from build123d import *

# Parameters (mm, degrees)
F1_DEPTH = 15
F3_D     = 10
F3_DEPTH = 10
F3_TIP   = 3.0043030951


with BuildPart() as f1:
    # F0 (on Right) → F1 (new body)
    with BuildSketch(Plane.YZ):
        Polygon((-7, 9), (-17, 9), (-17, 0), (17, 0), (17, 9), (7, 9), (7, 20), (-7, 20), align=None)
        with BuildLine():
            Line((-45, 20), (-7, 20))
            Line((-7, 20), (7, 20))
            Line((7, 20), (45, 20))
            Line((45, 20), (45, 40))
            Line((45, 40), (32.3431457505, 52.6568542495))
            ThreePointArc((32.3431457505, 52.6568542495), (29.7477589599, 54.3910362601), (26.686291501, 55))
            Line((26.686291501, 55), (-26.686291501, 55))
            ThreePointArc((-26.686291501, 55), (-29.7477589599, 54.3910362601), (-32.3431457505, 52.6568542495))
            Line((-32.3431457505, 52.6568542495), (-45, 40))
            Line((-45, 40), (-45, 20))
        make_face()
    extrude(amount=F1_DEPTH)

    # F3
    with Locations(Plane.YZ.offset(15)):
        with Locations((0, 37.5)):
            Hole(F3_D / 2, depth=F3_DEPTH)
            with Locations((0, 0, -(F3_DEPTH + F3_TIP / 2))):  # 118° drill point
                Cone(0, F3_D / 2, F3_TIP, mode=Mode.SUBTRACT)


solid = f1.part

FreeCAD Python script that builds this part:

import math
import FreeCAD as App
import Part
import Sketcher

V = App.Vector

doc = App.newDocument("Part")
params = doc.addObject("Spreadsheet::Sheet", "Params")
for row, (alias, value) in enumerate([
    ("sketch1_radius", "8 mm"),
    ("sketch1_width", "10 mm"),
    ("sketch1_width2", "34 mm"),
    ("sketch1_width3", "38 mm"),
    ("sketch1_height", "9 mm"),
    ("pad1_length", "15 mm"),
    ("sketch2_diameter", "10 mm"),
    ("hole_diameter", "10 mm"),
    ("hole_depth", "10 mm"),
], start=1):
    params.set(f"A{row}", alias)
    params.set(f"B{row}", "=" + value)
    params.setAlias(f"B{row}", alias)

body = doc.addObject("PartDesign::Body", "Body")

sketch1 = body.newObject("Sketcher::SketchObject", "Sketch")
sketch1.AttachmentSupport = (doc.getObject("YZ_Plane"), [""])
sketch1.MapMode = "FlatFace"
sketch1.addGeometry([
    Part.LineSegment(V(-7, 9, 0), V(-17, 9, 0)),
    Part.LineSegment(V(-17, 9, 0), V(-17, 0, 0)),
    Part.LineSegment(V(-17, 0, 0), V(17, 0, 0)),
    Part.LineSegment(V(17, 0, 0), V(17, 9, 0)),
    Part.LineSegment(V(17, 9, 0), V(7, 9, 0)),
    Part.LineSegment(V(7, 9, 0), V(7, 20, 0)),
    Part.LineSegment(V(7, 20, 0), V(45, 20, 0)),
    Part.LineSegment(V(45, 20, 0), V(45, 40, 0)),
    Part.LineSegment(V(45, 40, 0), V(32, 53, 0)),
    Part.ArcOfCircle(Part.Circle(V(27, 47, 0), V(0, 0, 1), 8), math.radians(45), math.radians(90)),
    Part.LineSegment(V(27, 55, 0), V(-27, 55, 0)),
    Part.ArcOfCircle(Part.Circle(V(-27, 47, 0), V(0, 0, 1), 8), math.radians(90), math.radians(135)),
    Part.LineSegment(V(-32, 53, 0), V(-45, 40, 0)),
    Part.LineSegment(V(-45, 40, 0), V(-45, 20, 0)),
    Part.LineSegment(V(-45, 20, 0), V(-7, 20, 0)),
    Part.LineSegment(V(-7, 20, 0), V(-7, 9, 0)),
], False)
sketch1.addConstraint([
    Sketcher.Constraint("Coincident", 0, 2, 1, 1),
    Sketcher.Constraint("Coincident", 1, 2, 2, 1),
    Sketcher.Constraint("Coincident", 2, 2, 3, 1),
    Sketcher.Constraint("Coincident", 3, 2, 4, 1),
    Sketcher.Constraint("Coincident", 4, 2, 5, 1),
    Sketcher.Constraint("Coincident", 5, 2, 6, 1),
    Sketcher.Constraint("Coincident", 6, 2, 7, 1),
    Sketcher.Constraint("Coincident", 7, 2, 8, 1),
    Sketcher.Constraint("Tangent", 8, 2, 9, 1),
    Sketcher.Constraint("Tangent", 9, 2, 10, 1),
    Sketcher.Constraint("Tangent", 10, 2, 11, 1),
    Sketcher.Constraint("Tangent", 11, 2, 12, 1),
    Sketcher.Constraint("Coincident", 12, 2, 13, 1),
    Sketcher.Constraint("Coincident", 13, 2, 14, 1),
    Sketcher.Constraint("Coincident", 14, 2, 15, 1),
    Sketcher.Constraint("Coincident", 15, 2, 0, 1),
    Sketcher.Constraint("Horizontal", 0),
    Sketcher.Constraint("Vertical", 1),
    Sketcher.Constraint("Horizontal", 2),
    Sketcher.Constraint("Vertical", 3),
    Sketcher.Constraint("Horizontal", 4),
    Sketcher.Constraint("Vertical", 5),
    Sketcher.Constraint("Horizontal", 6),
    Sketcher.Constraint("Vertical", 7),
    Sketcher.Constraint("Horizontal", 10),
    Sketcher.Constraint("Vertical", 13),
    Sketcher.Constraint("Horizontal", 14),
    Sketcher.Constraint("Vertical", 15),
    Sketcher.Constraint("Equal", 9, 11),
    Sketcher.Constraint("Symmetric", 1, 2, 2, 2, -1, 1),
    Sketcher.Constraint("Symmetric", 8, 2, 11, 2, -2),
    Sketcher.Constraint("Symmetric", 6, 2, 13, 2, -2),
    Sketcher.Constraint("Symmetric", 4, 2, 15, 2, -2),
    Sketcher.Constraint("Perpendicular", 8, 12),
    Sketcher.Constraint("Radius", 9, 8.0),
    Sketcher.Constraint("DistanceX", 0, 2, 0, 1, 10.0),
    Sketcher.Constraint("DistanceX", 2, 1, 2, 2, 34.0),
    Sketcher.Constraint("DistanceX", 6, 1, 6, 2, 38.0),
    Sketcher.Constraint("DistanceY", 1, 2, 1, 1, 9.0),
    Sketcher.Constraint("DistanceY", 5, 1, 5, 2, 11.0),
    Sketcher.Constraint("DistanceY", 7, 1, 7, 2, 20.0),
    Sketcher.Constraint("DistanceY", -1, 1, 9, 3, 47.0),
])
sketch1.setExpression("Constraints[34]", "Params.sketch1_radius")
sketch1.setExpression("Constraints[35]", "Params.sketch1_width")
sketch1.setExpression("Constraints[36]", "Params.sketch1_width2")
sketch1.setExpression("Constraints[37]", "Params.sketch1_width3")
sketch1.setExpression("Constraints[38]", "Params.sketch1_height")
pad1 = body.newObject("PartDesign::Pad", "Pad")
pad1.Profile = sketch1
pad1.setExpression("Length", "Params.pad1_length")

sketch2 = body.newObject("Sketcher::SketchObject", "Sketch001")
sketch2.AttachmentSupport = (doc.getObject("YZ_Plane"), [""])
sketch2.MapMode = "FlatFace"
sketch2.AttachmentOffset = App.Placement(V(0, 0, 15), App.Rotation())
sketch2.addGeometry(Part.Circle(V(0, 38, 0), V(0, 0, 1), 5), False)
sketch2.addConstraint([
    Sketcher.Constraint("PointOnObject", 0, 3, -2),
    Sketcher.Constraint("Diameter", 0, 10.0),
    Sketcher.Constraint("DistanceY", -1, 1, 0, 3, 37.5),
])
sketch2.setExpression("Constraints[1]", "Params.sketch2_diameter")
doc.recompute()
hole = body.newObject("PartDesign::Hole", "Hole")
hole.Profile = sketch2
hole.ThreadType = "None"
hole.setExpression("Diameter", "Params.hole_diameter")
hole.DepthType = "Dimension"
hole.setExpression("Depth", "Params.hole_depth")
hole.DrillPoint = "Angled"
hole.DrillPointAngle = 118

doc.recompute()
